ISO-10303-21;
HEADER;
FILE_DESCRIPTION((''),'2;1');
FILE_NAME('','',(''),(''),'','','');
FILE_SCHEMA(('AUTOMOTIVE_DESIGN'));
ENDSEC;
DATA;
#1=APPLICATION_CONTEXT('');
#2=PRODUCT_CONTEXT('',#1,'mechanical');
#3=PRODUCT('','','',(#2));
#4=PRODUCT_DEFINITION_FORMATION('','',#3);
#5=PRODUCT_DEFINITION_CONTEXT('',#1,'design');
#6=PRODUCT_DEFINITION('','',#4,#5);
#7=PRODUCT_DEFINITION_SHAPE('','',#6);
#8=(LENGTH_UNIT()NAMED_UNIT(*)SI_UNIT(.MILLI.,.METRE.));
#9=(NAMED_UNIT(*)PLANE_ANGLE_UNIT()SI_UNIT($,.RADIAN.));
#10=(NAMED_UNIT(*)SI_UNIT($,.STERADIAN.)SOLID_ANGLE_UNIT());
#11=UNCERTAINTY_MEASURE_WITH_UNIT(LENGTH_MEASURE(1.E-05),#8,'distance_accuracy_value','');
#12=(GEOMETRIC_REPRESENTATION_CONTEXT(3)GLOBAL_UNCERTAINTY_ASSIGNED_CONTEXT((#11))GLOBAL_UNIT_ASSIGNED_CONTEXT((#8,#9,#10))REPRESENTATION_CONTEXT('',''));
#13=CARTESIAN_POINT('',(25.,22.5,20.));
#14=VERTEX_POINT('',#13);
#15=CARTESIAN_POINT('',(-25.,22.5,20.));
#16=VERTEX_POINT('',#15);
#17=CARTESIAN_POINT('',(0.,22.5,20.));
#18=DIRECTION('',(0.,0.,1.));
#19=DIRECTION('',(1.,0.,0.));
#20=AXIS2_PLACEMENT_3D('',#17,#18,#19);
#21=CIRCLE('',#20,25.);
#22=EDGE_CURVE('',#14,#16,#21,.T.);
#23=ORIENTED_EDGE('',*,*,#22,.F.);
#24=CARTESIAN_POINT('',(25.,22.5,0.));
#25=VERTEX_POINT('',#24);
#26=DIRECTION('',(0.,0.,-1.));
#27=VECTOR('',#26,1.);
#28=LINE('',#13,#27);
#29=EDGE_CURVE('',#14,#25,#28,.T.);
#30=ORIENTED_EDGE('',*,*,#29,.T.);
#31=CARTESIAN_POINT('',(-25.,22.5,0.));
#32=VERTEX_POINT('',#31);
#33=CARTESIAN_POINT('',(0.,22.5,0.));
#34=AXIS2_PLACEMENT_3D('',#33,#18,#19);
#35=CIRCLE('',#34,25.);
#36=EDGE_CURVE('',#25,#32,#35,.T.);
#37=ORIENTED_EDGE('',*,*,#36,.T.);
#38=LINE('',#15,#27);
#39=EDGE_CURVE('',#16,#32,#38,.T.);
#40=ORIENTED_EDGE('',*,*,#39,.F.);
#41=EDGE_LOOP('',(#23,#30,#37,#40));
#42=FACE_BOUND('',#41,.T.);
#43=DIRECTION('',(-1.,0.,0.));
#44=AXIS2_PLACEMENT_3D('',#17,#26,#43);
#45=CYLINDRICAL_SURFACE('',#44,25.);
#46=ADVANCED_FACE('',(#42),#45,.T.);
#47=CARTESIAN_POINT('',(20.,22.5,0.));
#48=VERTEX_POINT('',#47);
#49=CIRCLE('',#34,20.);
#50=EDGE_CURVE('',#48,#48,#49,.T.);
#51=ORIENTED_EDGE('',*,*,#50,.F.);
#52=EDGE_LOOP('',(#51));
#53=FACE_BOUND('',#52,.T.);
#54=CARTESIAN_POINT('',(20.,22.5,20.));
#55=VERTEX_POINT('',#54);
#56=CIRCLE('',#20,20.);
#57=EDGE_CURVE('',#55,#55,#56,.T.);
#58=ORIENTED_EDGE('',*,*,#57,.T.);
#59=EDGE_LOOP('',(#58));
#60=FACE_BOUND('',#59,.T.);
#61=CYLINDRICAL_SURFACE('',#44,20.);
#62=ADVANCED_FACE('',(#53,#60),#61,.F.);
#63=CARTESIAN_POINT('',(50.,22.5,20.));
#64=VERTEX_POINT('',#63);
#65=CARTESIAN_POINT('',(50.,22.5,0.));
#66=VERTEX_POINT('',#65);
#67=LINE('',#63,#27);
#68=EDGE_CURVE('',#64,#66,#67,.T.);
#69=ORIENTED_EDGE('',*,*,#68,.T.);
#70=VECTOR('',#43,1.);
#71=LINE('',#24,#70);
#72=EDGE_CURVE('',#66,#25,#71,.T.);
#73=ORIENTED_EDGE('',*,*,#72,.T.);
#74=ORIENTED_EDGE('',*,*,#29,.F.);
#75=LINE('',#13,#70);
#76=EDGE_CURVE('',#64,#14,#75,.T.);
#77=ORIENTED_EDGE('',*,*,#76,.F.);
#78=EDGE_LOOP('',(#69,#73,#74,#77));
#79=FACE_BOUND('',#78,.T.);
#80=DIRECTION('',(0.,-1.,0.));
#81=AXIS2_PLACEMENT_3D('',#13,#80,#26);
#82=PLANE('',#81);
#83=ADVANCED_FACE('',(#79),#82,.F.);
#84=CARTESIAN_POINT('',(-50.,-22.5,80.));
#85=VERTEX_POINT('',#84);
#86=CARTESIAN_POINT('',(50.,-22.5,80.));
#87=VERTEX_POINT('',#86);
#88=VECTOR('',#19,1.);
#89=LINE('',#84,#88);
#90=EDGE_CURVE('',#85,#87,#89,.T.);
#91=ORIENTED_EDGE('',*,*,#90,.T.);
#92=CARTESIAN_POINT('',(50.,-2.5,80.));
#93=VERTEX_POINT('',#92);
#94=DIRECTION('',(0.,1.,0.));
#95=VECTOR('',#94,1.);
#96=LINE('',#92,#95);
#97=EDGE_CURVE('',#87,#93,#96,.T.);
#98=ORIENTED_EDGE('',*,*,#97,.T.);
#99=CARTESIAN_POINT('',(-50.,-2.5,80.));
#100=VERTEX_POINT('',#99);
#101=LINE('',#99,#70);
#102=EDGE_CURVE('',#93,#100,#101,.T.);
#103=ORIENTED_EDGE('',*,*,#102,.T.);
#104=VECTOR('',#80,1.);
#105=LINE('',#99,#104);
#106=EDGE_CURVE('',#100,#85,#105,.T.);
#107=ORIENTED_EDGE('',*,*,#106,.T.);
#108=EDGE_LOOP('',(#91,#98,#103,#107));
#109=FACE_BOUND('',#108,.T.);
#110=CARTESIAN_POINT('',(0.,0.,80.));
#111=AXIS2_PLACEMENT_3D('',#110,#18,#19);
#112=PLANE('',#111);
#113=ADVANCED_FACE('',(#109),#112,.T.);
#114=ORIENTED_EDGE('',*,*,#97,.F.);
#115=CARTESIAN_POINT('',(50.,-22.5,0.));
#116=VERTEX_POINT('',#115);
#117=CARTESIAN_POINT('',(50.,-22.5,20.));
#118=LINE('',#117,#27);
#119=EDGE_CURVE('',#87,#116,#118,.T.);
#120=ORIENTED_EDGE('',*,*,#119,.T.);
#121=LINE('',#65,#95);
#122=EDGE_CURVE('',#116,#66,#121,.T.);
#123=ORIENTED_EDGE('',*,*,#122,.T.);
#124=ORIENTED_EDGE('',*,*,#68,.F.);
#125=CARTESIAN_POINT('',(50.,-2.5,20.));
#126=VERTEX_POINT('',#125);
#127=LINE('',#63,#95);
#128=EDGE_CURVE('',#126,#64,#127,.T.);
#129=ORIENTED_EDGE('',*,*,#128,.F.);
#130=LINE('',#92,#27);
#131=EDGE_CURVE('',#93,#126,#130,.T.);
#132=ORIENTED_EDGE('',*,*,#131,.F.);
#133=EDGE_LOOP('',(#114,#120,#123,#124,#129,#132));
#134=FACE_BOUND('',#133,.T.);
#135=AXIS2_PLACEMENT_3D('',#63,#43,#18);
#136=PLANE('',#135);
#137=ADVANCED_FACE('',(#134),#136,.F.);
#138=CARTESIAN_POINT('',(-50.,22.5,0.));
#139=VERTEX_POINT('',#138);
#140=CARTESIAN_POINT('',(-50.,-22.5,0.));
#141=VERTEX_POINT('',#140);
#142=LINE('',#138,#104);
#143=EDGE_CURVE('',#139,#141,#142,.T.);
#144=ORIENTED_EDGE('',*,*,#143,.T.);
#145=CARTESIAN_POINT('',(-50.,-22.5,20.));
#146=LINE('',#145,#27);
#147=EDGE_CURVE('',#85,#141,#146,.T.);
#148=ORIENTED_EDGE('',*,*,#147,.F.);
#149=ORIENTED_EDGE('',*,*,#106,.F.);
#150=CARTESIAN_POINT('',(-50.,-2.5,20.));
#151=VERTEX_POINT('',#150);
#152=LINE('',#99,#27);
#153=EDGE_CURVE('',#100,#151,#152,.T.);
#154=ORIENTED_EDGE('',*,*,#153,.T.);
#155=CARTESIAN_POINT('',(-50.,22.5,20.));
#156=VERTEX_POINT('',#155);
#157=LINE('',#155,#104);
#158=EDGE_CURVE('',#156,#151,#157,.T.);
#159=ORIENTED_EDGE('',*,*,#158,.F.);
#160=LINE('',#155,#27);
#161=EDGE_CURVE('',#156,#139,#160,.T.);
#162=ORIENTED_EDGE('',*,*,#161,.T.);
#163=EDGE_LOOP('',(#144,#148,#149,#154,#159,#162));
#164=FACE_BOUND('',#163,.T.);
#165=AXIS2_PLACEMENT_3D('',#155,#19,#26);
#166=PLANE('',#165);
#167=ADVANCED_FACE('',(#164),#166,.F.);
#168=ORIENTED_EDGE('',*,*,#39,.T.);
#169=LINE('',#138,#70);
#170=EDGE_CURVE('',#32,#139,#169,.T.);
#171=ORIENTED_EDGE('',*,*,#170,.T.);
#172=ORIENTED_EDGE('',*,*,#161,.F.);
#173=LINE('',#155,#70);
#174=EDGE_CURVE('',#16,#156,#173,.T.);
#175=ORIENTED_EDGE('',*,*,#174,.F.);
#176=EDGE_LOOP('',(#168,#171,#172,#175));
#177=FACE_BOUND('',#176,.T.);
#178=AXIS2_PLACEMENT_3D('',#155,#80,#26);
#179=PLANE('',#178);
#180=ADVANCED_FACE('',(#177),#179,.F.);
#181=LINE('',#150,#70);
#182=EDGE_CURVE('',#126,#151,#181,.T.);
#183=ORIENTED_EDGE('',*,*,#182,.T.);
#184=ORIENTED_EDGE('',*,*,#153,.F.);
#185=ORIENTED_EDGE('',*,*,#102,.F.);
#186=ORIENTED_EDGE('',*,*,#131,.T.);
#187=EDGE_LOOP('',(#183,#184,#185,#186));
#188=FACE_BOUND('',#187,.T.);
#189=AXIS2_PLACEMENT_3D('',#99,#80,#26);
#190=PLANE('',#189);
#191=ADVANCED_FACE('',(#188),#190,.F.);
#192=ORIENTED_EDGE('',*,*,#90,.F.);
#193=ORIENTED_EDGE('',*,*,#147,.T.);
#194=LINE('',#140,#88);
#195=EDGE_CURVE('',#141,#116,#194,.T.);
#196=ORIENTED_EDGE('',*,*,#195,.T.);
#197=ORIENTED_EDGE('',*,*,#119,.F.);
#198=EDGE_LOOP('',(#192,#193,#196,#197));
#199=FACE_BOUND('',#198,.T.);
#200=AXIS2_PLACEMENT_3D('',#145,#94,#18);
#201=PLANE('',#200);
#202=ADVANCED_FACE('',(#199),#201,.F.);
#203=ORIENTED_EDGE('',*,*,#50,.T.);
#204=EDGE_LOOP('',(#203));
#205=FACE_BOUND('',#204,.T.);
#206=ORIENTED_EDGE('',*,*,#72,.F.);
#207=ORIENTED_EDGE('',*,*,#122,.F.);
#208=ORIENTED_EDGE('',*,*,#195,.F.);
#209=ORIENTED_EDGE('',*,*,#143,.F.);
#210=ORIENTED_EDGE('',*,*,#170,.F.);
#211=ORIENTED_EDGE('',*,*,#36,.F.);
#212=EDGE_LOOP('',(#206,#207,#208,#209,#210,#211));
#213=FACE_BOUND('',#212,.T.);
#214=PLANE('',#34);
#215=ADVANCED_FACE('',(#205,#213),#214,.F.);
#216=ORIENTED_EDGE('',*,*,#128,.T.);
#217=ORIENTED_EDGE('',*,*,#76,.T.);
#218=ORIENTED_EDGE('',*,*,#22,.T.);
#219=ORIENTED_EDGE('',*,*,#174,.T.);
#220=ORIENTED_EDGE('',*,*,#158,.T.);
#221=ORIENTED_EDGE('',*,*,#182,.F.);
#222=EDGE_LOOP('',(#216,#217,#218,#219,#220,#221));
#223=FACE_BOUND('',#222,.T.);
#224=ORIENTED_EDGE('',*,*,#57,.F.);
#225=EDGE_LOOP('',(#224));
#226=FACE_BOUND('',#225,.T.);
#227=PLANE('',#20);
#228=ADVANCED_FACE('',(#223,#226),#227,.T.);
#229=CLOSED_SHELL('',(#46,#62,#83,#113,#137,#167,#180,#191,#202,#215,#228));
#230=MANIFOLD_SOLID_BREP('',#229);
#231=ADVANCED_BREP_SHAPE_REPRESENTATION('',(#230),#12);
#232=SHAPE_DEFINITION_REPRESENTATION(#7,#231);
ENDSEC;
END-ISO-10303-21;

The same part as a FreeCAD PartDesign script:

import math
import FreeCAD as App
import Part
import Sketcher
from FreeCAD import Vector

doc = App.newDocument("Part")
body = doc.addObject("PartDesign::Body", "Body")

sketch1 = doc.addObject("Sketcher::SketchObject", "Sketch")
body.addObject(sketch1)
sketch1.AttachmentSupport = (doc.XY_Plane, [""])
sketch1.MapMode = "FlatFace"
sketch1.addGeometry(Part.LineSegment(Vector(-25, 22, 0), Vector(-50, 22, 0)), False)
sketch1.addGeometry(Part.LineSegment(Vector(-50, 22, 0), Vector(-50, -22, 0)), False)
sketch1.addGeometry(Part.LineSegment(Vector(-50, -22, 0), Vector(50, -22, 0)), False)
sketch1.addGeometry(Part.LineSegment(Vector(50, -22, 0), Vector(50, 22, 0)), False)
sketch1.addGeometry(Part.LineSegment(Vector(50, 22, 0), Vector(25, 22, 0)), False)
sketch1.addGeometry(Part.ArcOfCircle(Part.Circle(Vector(0, 22, 0), Vector(0, 0, 1), 25), math.radians(0), math.radians(180)), False)
sketch1.addGeometry(Part.Circle(Vector(0, 22, 0), Vector(0, 0, 1), 20), False)
sketch1.addConstraint(Sketcher.Constraint("Coincident", 0, 2, 1, 1))
sketch1.addConstraint(Sketcher.Constraint("Coincident", 1, 2, 2, 1))
sketch1.addConstraint(Sketcher.Constraint("Coincident", 2, 2, 3, 1))
sketch1.addConstraint(Sketcher.Constraint("Coincident", 3, 2, 4, 1))
sketch1.addConstraint(Sketcher.Constraint("Coincident", 4, 2, 5, 1))
sketch1.addConstraint(Sketcher.Constraint("Coincident", 5, 2, 0, 1))
sketch1.addConstraint(Sketcher.Constraint("Horizontal", 0))
sketch1.addConstraint(Sketcher.Constraint("Vertical", 1))
sketch1.addConstraint(Sketcher.Constraint("Horizontal", 2))
sketch1.addConstraint(Sketcher.Constraint("Vertical", 3))
sketch1.addConstraint(Sketcher.Constraint("Horizontal", 4))
sketch1.addConstraint(Sketcher.Constraint("Coincident", 6, 3, 5, 3))
sketch1.addConstraint(Sketcher.Constraint("Symmetric", 0, 2, 2, 2, -1, 1))
sketch1.addConstraint(Sketcher.Constraint("Symmetric", 4, 2, 5, 2, -2))
sketch1.addConstraint(Sketcher.Constraint("Horizontal", 6, 3, 0, 2))
sketch1.addConstraint(Sketcher.Constraint("Diameter", 6, 40.0))
sketch1.addConstraint(Sketcher.Constraint("Radius", 5, 25.0))
sketch1.addConstraint(Sketcher.Constraint("DistanceX", 0, 2, 0, 1, 25.0))
sketch1.addConstraint(Sketcher.Constraint("DistanceY", 1, 2, 1, 1, 45.0))
pad1 = doc.addObject("PartDesign::Pad", "Pad")
body.addObject(pad1)
pad1.Profile = sketch1
pad1.Length = 20

sketch2 = doc.addObject("Sketcher::SketchObject", "Sketch001")
body.addObject(sketch2)
sketch2.AttachmentSupport = (doc.XY_Plane, [""])
sketch2.MapMode = "FlatFace"
sketch2.AttachmentOffset = App.Placement(Vector(0, 0, 20), App.Rotation())
sketch2.addGeometry(Part.LineSegment(Vector(-50, -2, 0), Vector(-50, -22, 0)), False)
sketch2.addGeometry(Part.LineSegment(Vector(-50, -22, 0), Vector(50, -22, 0)), False)
sketch2.addGeometry(Part.LineSegment(Vector(50, -22, 0), Vector(50, -2, 0)), False)
sketch2.addGeometry(Part.LineSegment(Vector(50, -2, 0), Vector(-50, -2, 0)), False)
sketch2.addConstraint(Sketcher.Constraint("Coincident", 0, 2, 1, 1))
sketch2.addConstraint(Sketcher.Constraint("Coincident", 1, 2, 2, 1))
sketch2.addConstraint(Sketcher.Constraint("Coincident", 2, 2, 3, 1))
sketch2.addConstraint(Sketcher.Constraint("Coincident", 3, 2, 0, 1))
sketch2.addConstraint(Sketcher.Constraint("Vertical", 0))
sketch2.addConstraint(Sketcher.Constraint("Horizontal", 1))
sketch2.addConstraint(Sketcher.Constraint("Vertical", 2))
sketch2.addConstraint(Sketcher.Constraint("Horizontal", 3))
sketch2.addConstraint(Sketcher.Constraint("DistanceX", 1, 1, 1, 2, 100.0))
sketch2.addConstraint(Sketcher.Constraint("DistanceY", 0, 2, 0, 1, 20.0))
sketch2.addConstraint(Sketcher.Constraint("DistanceX", 0, 2, -1, 1, 50.0))
sketch2.addConstraint(Sketcher.Constraint("DistanceY", 0, 2, -1, 1, 22.5))
pad2 = doc.addObject("PartDesign::Pad", "Pad001")
body.addObject(pad2)
pad2.Profile = sketch2
pad2.Length = 60

doc.recompute()
